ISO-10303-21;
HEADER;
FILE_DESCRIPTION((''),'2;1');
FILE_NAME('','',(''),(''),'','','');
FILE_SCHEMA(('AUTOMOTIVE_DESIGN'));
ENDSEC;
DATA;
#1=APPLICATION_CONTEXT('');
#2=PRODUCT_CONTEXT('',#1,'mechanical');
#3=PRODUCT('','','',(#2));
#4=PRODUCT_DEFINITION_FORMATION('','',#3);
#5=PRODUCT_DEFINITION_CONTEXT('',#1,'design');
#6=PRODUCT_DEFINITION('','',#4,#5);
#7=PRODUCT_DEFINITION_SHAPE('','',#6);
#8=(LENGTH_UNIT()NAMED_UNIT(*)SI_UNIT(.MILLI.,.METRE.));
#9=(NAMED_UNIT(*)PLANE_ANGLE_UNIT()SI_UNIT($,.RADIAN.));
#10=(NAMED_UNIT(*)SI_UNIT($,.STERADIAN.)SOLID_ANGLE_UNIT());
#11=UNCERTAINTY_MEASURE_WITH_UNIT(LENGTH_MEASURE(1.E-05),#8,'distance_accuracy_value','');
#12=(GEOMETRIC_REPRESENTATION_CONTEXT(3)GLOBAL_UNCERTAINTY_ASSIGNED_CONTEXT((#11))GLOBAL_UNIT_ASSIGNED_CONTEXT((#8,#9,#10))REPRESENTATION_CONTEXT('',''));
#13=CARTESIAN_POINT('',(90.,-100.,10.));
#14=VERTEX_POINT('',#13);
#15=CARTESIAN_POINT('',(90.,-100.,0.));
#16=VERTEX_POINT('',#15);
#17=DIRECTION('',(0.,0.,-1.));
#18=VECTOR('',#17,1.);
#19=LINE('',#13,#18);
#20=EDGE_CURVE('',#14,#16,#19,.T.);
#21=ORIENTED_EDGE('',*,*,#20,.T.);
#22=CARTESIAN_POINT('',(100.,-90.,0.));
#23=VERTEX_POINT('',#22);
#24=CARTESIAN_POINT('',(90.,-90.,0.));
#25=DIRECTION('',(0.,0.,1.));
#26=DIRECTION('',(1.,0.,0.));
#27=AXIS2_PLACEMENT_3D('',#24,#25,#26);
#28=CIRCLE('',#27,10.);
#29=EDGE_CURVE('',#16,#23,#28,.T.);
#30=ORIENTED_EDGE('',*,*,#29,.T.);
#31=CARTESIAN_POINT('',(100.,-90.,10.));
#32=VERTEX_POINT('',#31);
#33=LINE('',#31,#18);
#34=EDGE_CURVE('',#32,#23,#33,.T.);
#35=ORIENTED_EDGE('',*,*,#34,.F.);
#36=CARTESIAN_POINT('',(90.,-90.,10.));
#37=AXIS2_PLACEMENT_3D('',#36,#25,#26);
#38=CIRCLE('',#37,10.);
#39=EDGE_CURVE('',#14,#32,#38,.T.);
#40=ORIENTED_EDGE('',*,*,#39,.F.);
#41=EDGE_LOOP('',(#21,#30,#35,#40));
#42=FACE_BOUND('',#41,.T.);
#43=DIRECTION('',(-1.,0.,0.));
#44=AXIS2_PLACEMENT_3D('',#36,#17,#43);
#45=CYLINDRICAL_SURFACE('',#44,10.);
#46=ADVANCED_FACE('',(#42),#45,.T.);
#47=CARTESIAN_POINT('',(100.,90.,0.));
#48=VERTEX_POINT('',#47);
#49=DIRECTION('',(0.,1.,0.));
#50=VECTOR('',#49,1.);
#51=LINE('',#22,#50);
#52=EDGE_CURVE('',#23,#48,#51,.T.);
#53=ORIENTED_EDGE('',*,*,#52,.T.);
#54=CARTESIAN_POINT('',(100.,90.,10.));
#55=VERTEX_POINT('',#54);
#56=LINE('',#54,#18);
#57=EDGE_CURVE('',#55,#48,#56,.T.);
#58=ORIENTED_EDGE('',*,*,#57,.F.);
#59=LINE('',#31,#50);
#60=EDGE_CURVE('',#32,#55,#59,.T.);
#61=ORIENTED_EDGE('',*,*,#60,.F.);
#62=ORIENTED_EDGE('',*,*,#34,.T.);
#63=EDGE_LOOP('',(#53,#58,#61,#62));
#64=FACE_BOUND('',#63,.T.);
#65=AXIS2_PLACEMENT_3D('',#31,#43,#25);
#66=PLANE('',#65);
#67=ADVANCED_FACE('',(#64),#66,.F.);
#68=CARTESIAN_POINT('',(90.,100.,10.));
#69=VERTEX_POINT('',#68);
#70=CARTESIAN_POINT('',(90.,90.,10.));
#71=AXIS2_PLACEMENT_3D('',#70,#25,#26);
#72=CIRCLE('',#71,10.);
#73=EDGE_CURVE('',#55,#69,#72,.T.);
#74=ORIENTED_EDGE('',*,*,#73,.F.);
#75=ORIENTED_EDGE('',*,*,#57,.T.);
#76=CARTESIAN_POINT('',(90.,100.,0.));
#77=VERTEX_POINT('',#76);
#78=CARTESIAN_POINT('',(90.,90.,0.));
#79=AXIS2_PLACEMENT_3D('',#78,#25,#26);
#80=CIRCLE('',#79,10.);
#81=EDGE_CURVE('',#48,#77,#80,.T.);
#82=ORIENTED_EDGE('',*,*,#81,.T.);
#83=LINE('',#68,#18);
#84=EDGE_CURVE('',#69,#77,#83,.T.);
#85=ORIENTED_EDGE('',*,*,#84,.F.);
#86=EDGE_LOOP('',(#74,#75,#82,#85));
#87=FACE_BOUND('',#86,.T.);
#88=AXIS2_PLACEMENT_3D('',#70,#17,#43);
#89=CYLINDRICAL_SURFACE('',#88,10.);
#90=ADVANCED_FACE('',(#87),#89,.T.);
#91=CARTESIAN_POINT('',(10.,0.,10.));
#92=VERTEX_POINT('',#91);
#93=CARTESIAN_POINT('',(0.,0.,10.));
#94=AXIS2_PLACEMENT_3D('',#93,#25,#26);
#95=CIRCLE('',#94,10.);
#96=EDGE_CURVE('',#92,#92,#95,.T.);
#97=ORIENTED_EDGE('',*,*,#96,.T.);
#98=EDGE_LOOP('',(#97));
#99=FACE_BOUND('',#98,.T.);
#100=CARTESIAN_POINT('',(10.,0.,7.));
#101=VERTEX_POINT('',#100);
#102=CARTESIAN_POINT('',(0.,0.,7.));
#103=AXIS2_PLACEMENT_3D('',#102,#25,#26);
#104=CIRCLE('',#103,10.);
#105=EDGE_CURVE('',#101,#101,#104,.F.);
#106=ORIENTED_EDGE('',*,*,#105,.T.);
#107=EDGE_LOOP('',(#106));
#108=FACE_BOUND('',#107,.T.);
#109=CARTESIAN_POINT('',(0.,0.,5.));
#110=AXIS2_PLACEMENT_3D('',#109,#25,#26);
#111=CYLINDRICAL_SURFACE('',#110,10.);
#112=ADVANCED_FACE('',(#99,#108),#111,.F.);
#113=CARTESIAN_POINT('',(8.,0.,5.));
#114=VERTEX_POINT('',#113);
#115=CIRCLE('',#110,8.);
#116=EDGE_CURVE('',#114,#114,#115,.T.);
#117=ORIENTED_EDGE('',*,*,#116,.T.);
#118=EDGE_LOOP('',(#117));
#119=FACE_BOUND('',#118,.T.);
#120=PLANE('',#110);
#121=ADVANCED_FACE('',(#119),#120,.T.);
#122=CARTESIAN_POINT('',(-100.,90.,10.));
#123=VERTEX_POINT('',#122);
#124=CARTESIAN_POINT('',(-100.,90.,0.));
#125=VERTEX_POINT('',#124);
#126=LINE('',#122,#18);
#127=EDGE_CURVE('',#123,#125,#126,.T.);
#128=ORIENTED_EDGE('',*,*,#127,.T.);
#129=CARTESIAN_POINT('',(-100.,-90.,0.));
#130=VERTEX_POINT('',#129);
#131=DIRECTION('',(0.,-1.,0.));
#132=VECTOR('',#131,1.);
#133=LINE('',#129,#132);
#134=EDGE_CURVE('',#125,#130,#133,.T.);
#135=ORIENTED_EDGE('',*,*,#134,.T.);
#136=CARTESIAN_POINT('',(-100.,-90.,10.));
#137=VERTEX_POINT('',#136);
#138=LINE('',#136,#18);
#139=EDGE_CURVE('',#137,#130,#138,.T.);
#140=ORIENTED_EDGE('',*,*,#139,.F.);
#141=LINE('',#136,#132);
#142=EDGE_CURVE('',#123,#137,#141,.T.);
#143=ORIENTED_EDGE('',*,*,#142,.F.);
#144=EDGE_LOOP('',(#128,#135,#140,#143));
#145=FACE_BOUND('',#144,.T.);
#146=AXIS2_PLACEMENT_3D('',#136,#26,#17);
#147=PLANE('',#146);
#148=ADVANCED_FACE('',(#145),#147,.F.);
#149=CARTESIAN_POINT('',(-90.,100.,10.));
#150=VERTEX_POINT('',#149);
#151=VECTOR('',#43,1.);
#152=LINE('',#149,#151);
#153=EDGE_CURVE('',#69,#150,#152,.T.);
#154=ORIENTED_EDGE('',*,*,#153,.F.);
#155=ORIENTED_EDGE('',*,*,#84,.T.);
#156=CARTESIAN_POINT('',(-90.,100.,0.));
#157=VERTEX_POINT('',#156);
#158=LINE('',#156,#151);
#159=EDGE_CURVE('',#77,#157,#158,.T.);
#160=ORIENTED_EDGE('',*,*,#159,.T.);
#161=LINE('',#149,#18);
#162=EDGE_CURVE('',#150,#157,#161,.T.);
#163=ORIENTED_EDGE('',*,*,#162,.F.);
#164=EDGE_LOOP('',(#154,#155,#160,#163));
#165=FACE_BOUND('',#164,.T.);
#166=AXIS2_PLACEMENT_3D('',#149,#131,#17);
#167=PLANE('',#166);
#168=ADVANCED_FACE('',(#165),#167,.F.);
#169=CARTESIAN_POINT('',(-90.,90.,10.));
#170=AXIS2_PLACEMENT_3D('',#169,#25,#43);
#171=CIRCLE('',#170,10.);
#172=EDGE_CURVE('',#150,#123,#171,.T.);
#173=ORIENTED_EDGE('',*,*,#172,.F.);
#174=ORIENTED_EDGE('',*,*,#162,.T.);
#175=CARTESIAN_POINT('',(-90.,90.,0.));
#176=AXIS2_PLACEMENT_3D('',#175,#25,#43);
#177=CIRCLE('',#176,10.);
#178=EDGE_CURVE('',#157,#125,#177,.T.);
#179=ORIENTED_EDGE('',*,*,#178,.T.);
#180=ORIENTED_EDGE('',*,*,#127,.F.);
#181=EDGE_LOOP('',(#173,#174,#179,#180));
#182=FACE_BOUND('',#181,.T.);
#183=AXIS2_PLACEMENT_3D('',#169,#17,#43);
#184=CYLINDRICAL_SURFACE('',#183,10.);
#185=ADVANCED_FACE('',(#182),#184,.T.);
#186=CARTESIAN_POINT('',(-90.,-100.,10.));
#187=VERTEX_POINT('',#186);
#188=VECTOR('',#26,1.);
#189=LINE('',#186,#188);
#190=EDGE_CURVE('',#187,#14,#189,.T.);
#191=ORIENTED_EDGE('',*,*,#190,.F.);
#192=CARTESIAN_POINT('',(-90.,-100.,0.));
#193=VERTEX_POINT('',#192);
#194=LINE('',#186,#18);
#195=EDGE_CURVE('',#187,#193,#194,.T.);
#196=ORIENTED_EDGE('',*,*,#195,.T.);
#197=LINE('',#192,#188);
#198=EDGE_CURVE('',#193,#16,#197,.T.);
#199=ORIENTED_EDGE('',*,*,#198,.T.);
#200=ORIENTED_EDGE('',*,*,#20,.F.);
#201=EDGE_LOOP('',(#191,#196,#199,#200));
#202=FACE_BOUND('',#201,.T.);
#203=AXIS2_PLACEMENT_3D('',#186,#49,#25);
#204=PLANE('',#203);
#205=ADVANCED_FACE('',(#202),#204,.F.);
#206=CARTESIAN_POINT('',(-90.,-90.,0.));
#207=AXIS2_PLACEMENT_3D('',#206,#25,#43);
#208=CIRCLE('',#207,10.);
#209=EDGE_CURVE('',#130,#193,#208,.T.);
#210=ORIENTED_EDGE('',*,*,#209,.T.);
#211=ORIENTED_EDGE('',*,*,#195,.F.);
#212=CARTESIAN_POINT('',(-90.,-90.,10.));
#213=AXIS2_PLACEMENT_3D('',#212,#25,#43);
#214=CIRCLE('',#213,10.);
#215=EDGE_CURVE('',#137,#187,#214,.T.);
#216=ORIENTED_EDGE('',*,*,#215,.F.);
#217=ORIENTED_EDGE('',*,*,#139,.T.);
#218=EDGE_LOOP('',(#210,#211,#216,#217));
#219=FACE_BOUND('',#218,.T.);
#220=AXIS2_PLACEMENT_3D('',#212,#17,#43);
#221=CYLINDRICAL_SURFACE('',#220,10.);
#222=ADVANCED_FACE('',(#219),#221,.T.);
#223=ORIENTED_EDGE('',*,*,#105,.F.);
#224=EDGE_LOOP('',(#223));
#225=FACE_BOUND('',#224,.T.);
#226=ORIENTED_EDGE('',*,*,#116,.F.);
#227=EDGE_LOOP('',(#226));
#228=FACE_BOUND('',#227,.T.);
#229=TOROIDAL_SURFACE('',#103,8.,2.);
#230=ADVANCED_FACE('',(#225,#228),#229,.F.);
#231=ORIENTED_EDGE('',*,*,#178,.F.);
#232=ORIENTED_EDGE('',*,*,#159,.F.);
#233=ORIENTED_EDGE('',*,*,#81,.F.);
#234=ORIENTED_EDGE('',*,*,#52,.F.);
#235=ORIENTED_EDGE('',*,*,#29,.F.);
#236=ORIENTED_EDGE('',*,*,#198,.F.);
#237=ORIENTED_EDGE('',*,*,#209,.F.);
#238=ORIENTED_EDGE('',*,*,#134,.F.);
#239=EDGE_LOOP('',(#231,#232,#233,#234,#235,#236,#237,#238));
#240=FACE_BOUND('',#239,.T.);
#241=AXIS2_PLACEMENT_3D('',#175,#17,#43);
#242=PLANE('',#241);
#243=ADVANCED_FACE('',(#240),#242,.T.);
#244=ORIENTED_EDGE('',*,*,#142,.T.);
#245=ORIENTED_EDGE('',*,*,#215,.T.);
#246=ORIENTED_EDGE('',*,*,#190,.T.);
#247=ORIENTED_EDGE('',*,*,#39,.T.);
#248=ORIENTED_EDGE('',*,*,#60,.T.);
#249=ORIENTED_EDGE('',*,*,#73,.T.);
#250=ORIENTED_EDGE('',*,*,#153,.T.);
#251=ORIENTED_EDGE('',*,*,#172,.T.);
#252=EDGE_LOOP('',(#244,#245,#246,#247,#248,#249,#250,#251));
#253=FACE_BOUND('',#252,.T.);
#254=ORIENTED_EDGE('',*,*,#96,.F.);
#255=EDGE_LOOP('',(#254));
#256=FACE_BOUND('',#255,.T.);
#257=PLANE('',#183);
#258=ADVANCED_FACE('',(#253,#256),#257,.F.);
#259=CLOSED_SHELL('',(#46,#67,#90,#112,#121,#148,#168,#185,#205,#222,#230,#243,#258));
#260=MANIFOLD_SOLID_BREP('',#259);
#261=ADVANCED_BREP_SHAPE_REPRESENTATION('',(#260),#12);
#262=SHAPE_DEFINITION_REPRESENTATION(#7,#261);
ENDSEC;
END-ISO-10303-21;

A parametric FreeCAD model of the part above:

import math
import FreeCAD as App
import Part
import Sketcher


def edges_at(feature, points):
    """Names of the edges that pass closest to the given points."""
    edges = feature.Shape.Edges
    near = lambda p: min(range(len(edges)), key=lambda i: edges[i].distToShape(Part.Vertex(*p))[0])
    return sorted({f"Edge{near(p) + 1}" for p in points})

doc = App.newDocument("Part")
body = doc.addObject("PartDesign::Body", "Body")

sketch1 = doc.addObject("Sketcher::SketchObject", "Sketch")
body.addObject(sketch1)
sketch1.AttachmentSupport = (doc.XY_Plane, [""])
sketch1.MapMode = "FlatFace"
sketch1.addGeometry(Part.LineSegment(App.Vector(-90, -100, 0), App.Vector(90, -100, 0)), False)
sketch1.addGeometry(Part.ArcOfCircle(Part.Circle(App.Vector(90, -90, 0), App.Vector(0, 0, 1), 10), math.radians(-90), math.radians(0)), False)
sketch1.addGeometry(Part.LineSegment(App.Vector(100, -90, 0), App.Vector(100, 90, 0)), False)
sketch1.addGeometry(Part.ArcOfCircle(Part.Circle(App.Vector(90, 90, 0), App.Vector(0, 0, 1), 10), math.radians(0), math.radians(90)), False)
sketch1.addGeometry(Part.LineSegment(App.Vector(90, 100, 0), App.Vector(-90, 100, 0)), False)
sketch1.addGeometry(Part.ArcOfCircle(Part.Circle(App.Vector(-90, 90, 0), App.Vector(0, 0, 1), 10), math.radians(90), math.radians(180)), False)
sketch1.addGeometry(Part.LineSegment(App.Vector(-100, 90, 0), App.Vector(-100, -90, 0)), False)
sketch1.addGeometry(Part.ArcOfCircle(Part.Circle(App.Vector(-90, -90, 0), App.Vector(0, 0, 1), 10), math.radians(180), math.radians(270)), False)
sketch1.addConstraint(Sketcher.Constraint("Tangent", 0, 2, 1, 1))
sketch1.addConstraint(Sketcher.Constraint("Tangent", 1, 2, 2, 1))
sketch1.addConstraint(Sketcher.Constraint("Tangent", 2, 2, 3, 1))
sketch1.addConstraint(Sketcher.Constraint("Tangent", 3, 2, 4, 1))
sketch1.addConstraint(Sketcher.Constraint("Tangent", 4, 2, 5, 1))
sketch1.addConstraint(Sketcher.Constraint("Tangent", 5, 2, 6, 1))
sketch1.addConstraint(Sketcher.Constraint("Tangent", 6, 2, 7, 1))
sketch1.addConstraint(Sketcher.Constraint("Tangent", 7, 2, 0, 1))
sketch1.addConstraint(Sketcher.Constraint("Horizontal", 0))
sketch1.addConstraint(Sketcher.Constraint("Vertical", 2))
sketch1.addConstraint(Sketcher.Constraint("Horizontal", 4))
sketch1.addConstraint(Sketcher.Constraint("Vertical", 6))
sketch1.addConstraint(Sketcher.Constraint("Equal", 1, 3))
sketch1.addConstraint(Sketcher.Constraint("Equal", 3, 5))
sketch1.addConstraint(Sketcher.Constraint("Equal", 5, 7))
sketch1.addConstraint(Sketcher.Constraint("Symmetric", 1, 3, 5, 3, -1, 1))
sketch1.addConstraint(Sketcher.Constraint("Equal", 4, 2))
sketch1.addConstraint(Sketcher.Constraint("Radius", 1, 10.0))
sketch1.addConstraint(Sketcher.Constraint("DistanceX", 0, 1, 0, 2, 180.0))
pad1 = doc.addObject("PartDesign::Pad", "Pad")
body.addObject(pad1)
pad1.Profile = sketch1
pad1.Length = 10

sketch2 = doc.addObject("Sketcher::SketchObject", "Sketch001")
body.addObject(sketch2)
sketch2.AttachmentSupport = (doc.XY_Plane, [""])
sketch2.MapMode = "FlatFace"
sketch2.AttachmentOffset = App.Placement(App.Vector(0, 0, 10), App.Rotation())
sketch2.addGeometry(Part.Circle(App.Vector(0, 0, 0), App.Vector(0, 0, 1), 10), False)
sketch2.addConstraint(Sketcher.Constraint("Coincident", 0, 3, -1, 1))
sketch2.addConstraint(Sketcher.Constraint("Diameter", 0, 20.0))
pocket1 = doc.addObject("PartDesign::Pocket", "Pocket")
body.addObject(pocket1)
pocket1.Profile = sketch2
pocket1.Length = 5
doc.recompute()

fillet = doc.addObject("PartDesign::Fillet", "Fillet")
body.addObject(fillet)
fillet.Base = (pocket1, edges_at(pocket1, [(-10, 0, 5)]))
fillet.Radius = 2

doc.recompute()
